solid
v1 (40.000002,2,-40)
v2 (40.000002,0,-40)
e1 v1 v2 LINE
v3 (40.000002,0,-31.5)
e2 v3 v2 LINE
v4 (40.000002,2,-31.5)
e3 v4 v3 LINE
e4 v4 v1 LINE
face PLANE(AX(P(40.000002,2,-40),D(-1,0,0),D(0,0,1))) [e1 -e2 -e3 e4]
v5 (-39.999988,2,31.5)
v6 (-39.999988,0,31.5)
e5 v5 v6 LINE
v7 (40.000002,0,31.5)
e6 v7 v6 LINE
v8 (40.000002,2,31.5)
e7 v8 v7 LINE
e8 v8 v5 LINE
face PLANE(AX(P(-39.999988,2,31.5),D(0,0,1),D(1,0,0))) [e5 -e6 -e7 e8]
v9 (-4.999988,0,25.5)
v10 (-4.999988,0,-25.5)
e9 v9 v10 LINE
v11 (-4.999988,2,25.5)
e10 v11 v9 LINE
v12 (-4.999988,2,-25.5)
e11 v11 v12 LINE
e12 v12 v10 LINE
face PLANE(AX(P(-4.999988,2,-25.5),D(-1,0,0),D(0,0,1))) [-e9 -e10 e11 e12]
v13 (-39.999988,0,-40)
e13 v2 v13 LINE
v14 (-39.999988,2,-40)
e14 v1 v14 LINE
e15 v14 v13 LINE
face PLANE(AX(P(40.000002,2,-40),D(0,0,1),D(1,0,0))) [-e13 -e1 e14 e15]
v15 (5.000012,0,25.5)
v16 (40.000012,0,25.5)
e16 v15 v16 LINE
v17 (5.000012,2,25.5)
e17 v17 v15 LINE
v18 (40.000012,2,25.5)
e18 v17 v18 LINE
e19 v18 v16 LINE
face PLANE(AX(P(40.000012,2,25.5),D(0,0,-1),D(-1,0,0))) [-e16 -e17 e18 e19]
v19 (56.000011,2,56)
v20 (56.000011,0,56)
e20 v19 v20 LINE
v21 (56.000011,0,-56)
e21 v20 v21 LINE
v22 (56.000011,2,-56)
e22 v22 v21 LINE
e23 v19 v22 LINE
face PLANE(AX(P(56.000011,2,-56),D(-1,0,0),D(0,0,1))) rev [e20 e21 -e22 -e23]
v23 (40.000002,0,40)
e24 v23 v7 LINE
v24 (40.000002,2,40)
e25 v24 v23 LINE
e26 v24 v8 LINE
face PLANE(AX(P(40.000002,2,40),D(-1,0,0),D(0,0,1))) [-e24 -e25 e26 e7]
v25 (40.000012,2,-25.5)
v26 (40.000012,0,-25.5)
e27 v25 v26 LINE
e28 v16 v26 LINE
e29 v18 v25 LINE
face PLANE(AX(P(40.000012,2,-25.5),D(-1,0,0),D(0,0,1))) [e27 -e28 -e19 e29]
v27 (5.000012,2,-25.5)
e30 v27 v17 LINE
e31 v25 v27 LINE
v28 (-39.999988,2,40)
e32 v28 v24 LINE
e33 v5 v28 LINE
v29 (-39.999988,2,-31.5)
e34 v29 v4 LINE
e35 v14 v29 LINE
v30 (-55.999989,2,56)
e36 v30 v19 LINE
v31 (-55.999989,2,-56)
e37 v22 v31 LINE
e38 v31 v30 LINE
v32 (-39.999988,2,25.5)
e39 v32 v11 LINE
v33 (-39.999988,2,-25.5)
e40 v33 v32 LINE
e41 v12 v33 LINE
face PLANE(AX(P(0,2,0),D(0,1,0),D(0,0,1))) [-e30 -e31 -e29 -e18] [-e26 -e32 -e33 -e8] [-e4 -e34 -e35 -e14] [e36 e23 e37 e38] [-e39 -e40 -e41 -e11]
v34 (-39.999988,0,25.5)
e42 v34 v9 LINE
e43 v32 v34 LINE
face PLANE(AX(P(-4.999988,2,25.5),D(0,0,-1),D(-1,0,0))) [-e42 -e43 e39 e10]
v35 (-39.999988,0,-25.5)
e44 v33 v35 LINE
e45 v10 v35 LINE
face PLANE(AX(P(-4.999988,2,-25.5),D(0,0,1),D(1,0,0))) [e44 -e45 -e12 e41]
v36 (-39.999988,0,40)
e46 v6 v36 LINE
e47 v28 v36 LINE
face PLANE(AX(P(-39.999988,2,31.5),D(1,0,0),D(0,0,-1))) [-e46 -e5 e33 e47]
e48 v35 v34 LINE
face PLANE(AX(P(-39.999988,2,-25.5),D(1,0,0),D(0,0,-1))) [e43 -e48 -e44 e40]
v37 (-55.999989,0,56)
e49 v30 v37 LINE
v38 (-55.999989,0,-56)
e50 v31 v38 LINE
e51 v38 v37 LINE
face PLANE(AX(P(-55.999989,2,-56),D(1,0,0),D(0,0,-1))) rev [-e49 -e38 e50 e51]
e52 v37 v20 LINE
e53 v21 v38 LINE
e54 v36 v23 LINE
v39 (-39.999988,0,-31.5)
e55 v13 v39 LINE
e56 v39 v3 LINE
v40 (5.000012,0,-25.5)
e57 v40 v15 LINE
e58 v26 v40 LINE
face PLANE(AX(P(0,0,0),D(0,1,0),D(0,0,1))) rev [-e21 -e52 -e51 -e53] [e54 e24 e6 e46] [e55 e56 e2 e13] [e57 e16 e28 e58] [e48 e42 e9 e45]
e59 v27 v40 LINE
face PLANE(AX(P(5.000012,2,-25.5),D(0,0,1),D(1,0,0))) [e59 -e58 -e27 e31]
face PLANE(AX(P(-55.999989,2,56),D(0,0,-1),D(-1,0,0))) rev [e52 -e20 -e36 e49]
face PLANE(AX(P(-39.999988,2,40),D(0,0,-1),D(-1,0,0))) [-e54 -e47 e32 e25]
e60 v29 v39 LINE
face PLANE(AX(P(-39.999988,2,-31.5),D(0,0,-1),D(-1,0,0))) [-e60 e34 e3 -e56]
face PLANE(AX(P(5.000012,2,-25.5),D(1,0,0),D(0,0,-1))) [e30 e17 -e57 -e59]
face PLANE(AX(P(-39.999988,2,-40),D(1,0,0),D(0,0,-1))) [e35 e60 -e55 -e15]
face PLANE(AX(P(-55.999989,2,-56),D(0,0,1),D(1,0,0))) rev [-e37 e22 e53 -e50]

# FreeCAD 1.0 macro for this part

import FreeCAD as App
import Part
import Sketcher

V = App.Vector
Q = App.Units.Quantity

doc = App.newDocument("Part")
body = doc.addObject("PartDesign::Body", "Body")

# Sketch on XZ plane
sketch1 = body.newObject("Sketcher::SketchObject", "Sketch")
sketch1.AttachmentSupport = (doc.getObject("XZ_Plane"), [""])
sketch1.MapMode = "FlatFace"
sketch1.addGeometry([
    Part.LineSegment(V(-56, -56, 0), V(-56, 56, 0)),  # 0
    Part.LineSegment(V(-56, 56, 0), V(56, 56, 0)),  # 1
    Part.LineSegment(V(56, 56, 0), V(56, -56, 0)),  # 2
    Part.LineSegment(V(56, -56, 0), V(-56, -56, 0)),  # 3
    Part.LineSegment(V(40, 40, 0), V(-40, 40, 0)),  # 4
    Part.LineSegment(V(-40, 40, 0), V(-40, 32, 0)),  # 5
    Part.LineSegment(V(-40, 32, 0), V(40, 32, 0)),  # 6
    Part.LineSegment(V(40, 32, 0), V(40, 40, 0)),  # 7
    Part.LineSegment(V(-5, 26, 0), V(-40, 26, 0)),  # 8
    Part.LineSegment(V(-40, 26, 0), V(-40, -26, 0)),  # 9
    Part.LineSegment(V(-40, -26, 0), V(-5, -26, 0)),  # 10
    Part.LineSegment(V(-5, -26, 0), V(-5, 26, 0)),  # 11
    Part.LineSegment(V(40, -32, 0), V(-40, -32, 0)),  # 12
    Part.LineSegment(V(-40, -32, 0), V(-40, -40, 0)),  # 13
    Part.LineSegment(V(-40, -40, 0), V(40, -40, 0)),  # 14
    Part.LineSegment(V(40, -40, 0), V(40, -32, 0)),  # 15
    Part.LineSegment(V(40, 26, 0), V(5, 26, 0)),  # 16
    Part.LineSegment(V(5, 26, 0), V(5, -26, 0)),  # 17
    Part.LineSegment(V(5, -26, 0), V(40, -26, 0)),  # 18
    Part.LineSegment(V(40, -26, 0), V(40, 26, 0)),  # 19
], False)
sketch1.addConstraint([
    Sketcher.Constraint("Coincident", 0, 2, 1, 1),
    Sketcher.Constraint("Coincident", 1, 2, 2, 1),
    Sketcher.Constraint("Coincident", 2, 2, 3, 1),
    Sketcher.Constraint("Coincident", 3, 2, 0, 1),
    Sketcher.Constraint("Coincident", 4, 2, 5, 1),
    Sketcher.Constraint("Coincident", 5, 2, 6, 1),
    Sketcher.Constraint("Coincident", 6, 2, 7, 1),
    Sketcher.Constraint("Coincident", 7, 2, 4, 1),
    Sketcher.Constraint("Coincident", 8, 2, 9, 1),
    Sketcher.Constraint("Coincident", 9, 2, 10, 1),
    Sketcher.Constraint("Coincident", 10, 2, 11, 1),
    Sketcher.Constraint("Coincident", 11, 2, 8, 1),
    Sketcher.Constraint("Coincident", 12, 2, 13, 1),
    Sketcher.Constraint("Coincident", 13, 2, 14, 1),
    Sketcher.Constraint("Coincident", 14, 2, 15, 1),
    Sketcher.Constraint("Coincident", 15, 2, 12, 1),
    Sketcher.Constraint("Coincident", 16, 2, 17, 1),
    Sketcher.Constraint("Coincident", 17, 2, 18, 1),
    Sketcher.Constraint("Coincident", 18, 2, 19, 1),
    Sketcher.Constraint("Coincident", 19, 2, 16, 1),
    Sketcher.Constraint("Vertical", 0),
    Sketcher.Constraint("Horizontal", 1),
    Sketcher.Constraint("Vertical", 2),
    Sketcher.Constraint("Horizontal", 3),
    Sketcher.Constraint("Horizontal", 4),
    Sketcher.Constraint("Vertical", 5),
    Sketcher.Constraint("Horizontal", 6),
    Sketcher.Constraint("Vertical", 7),
    Sketcher.Constraint("Horizontal", 8),
    Sketcher.Constraint("Vertical", 9),
    Sketcher.Constraint("Horizontal", 10),
    Sketcher.Constraint("Vertical", 11),
    Sketcher.Constraint("Horizontal", 12),
    Sketcher.Constraint("Vertical", 13),
    Sketcher.Constraint("Horizontal", 14),
    Sketcher.Constraint("Vertical", 15),
    Sketcher.Constraint("Horizontal", 16),
    Sketcher.Constraint("Vertical", 17),
    Sketcher.Constraint("Horizontal", 18),
    Sketcher.Constraint("Vertical", 19),
    Sketcher.Constraint("Symmetric", 5, 2, 12, 2, -1),
    Sketcher.Constraint("Symmetric", 7, 2, 14, 2, -1),
    Sketcher.Constraint("Horizontal", 11, 2, 16, 2),
    Sketcher.Constraint("Horizontal", 10, 2, 17, 2),
    Sketcher.Constraint("Vertical", 5, 2, 8, 2),
    Sketcher.Constraint("Equal", 10, 16),
    Sketcher.Constraint("Equal", 3, 0),
    Sketcher.Constraint("DistanceX", 1, 1, 1, 2, Q("112 mm")),
    Sketcher.Constraint("DistanceX", 8, 2, 8, 1, Q("35 mm")),
    Sketcher.Constraint("DistanceY", 9, 2, 9, 1, Q("51 mm")),
    Sketcher.Constraint("DistanceY", 5, 2, 5, 1, Q("8.5 mm")),
    Sketcher.Constraint("DistanceY", -1, 1, 0, 2, Q("56 mm")),
    Sketcher.Constraint("DistanceY", -1, 1, 4, 2, Q("40 mm")),
    Sketcher.Constraint("DistanceX", -1, 1, 6, 2, Q("40.000002 mm")),
    Sketcher.Constraint("DistanceX", 0, 2, 4, 2, Q("16.000001 mm")),
    Sketcher.Constraint("DistanceY", 8, 2, 5, 2, Q("6 mm")),
    Sketcher.Constraint("DistanceX", 11, 2, 16, 2, Q("10 mm")),
    Sketcher.Constraint("DistanceX", 4, 2, 4, 1, Q("79.99999 mm")),
])
pad1 = body.newObject("PartDesign::Pad", "Pad")
pad1.Profile = sketch1
pad1.Length = 2
pad1.Reversed = True

doc.recompute()
